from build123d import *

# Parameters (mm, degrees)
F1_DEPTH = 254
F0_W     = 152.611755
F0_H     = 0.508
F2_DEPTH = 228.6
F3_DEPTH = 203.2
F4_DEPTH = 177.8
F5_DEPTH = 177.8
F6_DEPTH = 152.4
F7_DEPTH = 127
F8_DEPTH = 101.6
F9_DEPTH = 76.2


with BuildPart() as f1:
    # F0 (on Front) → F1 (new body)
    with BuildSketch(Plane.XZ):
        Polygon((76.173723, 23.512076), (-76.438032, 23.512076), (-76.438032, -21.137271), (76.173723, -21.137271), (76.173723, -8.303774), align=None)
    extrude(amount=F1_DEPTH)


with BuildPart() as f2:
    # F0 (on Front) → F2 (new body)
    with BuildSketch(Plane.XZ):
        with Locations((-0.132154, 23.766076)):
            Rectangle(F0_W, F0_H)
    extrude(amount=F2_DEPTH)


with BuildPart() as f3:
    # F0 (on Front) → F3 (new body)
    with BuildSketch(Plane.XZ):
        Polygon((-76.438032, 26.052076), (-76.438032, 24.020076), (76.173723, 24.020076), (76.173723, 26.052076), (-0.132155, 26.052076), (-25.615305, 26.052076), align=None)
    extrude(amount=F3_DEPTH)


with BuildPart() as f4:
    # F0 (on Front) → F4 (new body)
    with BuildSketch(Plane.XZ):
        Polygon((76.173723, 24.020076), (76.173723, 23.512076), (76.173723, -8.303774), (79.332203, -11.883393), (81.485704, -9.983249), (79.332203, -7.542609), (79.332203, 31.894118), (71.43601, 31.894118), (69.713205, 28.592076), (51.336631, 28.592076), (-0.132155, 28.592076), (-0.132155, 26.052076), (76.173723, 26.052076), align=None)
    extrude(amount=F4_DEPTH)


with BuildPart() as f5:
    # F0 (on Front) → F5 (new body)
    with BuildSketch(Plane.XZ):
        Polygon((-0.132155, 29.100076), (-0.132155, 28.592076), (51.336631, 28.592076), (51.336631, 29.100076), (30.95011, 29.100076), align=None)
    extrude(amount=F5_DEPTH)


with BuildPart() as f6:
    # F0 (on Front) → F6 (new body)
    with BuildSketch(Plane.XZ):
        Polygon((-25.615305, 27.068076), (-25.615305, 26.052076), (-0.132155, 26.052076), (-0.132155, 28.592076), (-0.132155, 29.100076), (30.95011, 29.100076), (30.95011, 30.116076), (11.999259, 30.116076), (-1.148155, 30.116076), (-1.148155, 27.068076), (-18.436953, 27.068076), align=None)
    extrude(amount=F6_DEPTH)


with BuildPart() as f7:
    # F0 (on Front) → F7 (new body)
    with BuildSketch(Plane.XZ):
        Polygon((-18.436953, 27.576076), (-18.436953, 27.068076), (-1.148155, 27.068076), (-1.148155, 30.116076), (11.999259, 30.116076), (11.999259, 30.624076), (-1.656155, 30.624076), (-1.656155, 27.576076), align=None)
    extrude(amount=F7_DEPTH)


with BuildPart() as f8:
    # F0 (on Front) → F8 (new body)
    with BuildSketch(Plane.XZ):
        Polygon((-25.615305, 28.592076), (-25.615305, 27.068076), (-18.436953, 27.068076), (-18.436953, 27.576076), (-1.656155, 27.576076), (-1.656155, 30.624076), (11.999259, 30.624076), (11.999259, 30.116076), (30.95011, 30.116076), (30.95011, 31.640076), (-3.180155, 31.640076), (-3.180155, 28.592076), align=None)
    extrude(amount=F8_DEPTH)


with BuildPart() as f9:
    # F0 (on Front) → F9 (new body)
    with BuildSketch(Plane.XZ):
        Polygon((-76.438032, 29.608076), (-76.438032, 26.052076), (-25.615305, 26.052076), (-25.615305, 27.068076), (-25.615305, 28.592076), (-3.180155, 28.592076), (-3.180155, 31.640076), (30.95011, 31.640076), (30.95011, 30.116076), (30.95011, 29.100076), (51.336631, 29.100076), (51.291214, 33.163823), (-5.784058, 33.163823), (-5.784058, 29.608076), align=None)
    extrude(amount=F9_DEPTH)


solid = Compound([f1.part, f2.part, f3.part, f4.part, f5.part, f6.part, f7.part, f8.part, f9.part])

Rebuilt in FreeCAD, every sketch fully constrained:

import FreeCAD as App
import Part
import Sketcher
from FreeCAD import Vector
Q = App.Units.Quantity

doc = App.newDocument("Part")
body = doc.addObject("PartDesign::Body", "Body")

# Sketch on XZ plane
sketch1 = body.newObject("Sketcher::SketchObject", "Sketch")
sketch1.AttachmentSupport = (doc.getObject("XZ_Plane"), [""])
sketch1.MapMode = "FlatFace"
sketch1.addGeometry([
    Part.LineSegment(Vector(76, 24, 0), Vector(-76, 24, 0)),
    Part.LineSegment(Vector(-76, 24, 0), Vector(-76, -21, 0)),
    Part.LineSegment(Vector(-76, -21, 0), Vector(76, -21, 0)),
    Part.LineSegment(Vector(76, -21, 0), Vector(76, 24, 0)),
], False)
sketch1.addConstraint([
    Sketcher.Constraint("Coincident", 0, 2, 1, 1),
    Sketcher.Constraint("Coincident", 1, 2, 2, 1),
    Sketcher.Constraint("Coincident", 2, 2, 3, 1),
    Sketcher.Constraint("Coincident", 3, 2, 0, 1),
    Sketcher.Constraint("Horizontal", 0),
    Sketcher.Constraint("Vertical", 1),
    Sketcher.Constraint("Horizontal", 2),
    Sketcher.Constraint("Vertical", 3),
    Sketcher.Constraint("DistanceX", 0, 2, 0, 1, Q("152.611755 mm")),
    Sketcher.Constraint("DistanceY", 1, 2, 1, 1, Q("44.649347 mm")),
    Sketcher.Constraint("DistanceY", 1, 2, -1, 1, Q("21.137271 mm")),
    Sketcher.Constraint("DistanceX", 0, 2, -1, 1, Q("76.438032 mm")),
])
pad1 = body.newObject("PartDesign::Pad", "Pad")
pad1.Profile = sketch1
pad1.Length = Q("10 in")
body2 = doc.addObject("PartDesign::Body", "Body001")

# Sketch on XZ plane
sketch2 = body2.newObject("Sketcher::SketchObject", "Sketch001")
sketch2.AttachmentSupport = (doc.getObject("XZ_Plane001"), [""])
sketch2.MapMode = "FlatFace"
sketch2.addGeometry([
    Part.LineSegment(Vector(-76.4, 24, 0), Vector(-76.4, 23.5, 0)),
    Part.LineSegment(Vector(-76.4, 23.5, 0), Vector(76.2, 23.5, 0)),
    Part.LineSegment(Vector(76.2, 23.5, 0), Vector(76.2, 24, 0)),
    Part.LineSegment(Vector(76.2, 24, 0), Vector(-76.4, 24, 0)),
], False)
sketch2.addConstraint([
    Sketcher.Constraint("Coincident", 0, 2, 1, 1),
    Sketcher.Constraint("Coincident", 1, 2, 2, 1),
    Sketcher.Constraint("Coincident", 2, 2, 3, 1),
    Sketcher.Constraint("Coincident", 3, 2, 0, 1),
    Sketcher.Constraint("Vertical", 0),
    Sketcher.Constraint("Horizontal", 1),
    Sketcher.Constraint("Vertical", 2),
    Sketcher.Constraint("Horizontal", 3),
    Sketcher.Constraint("DistanceY", 0, 2, 0, 1, Q("0.02 in")),
    Sketcher.Constraint("DistanceX", 1, 1, 1, 2, Q("152.611755 mm")),
    Sketcher.Constraint("DistanceX", 0, 2, -1, 1, Q("76.438031 mm")),
    Sketcher.Constraint("DistanceY", -1, 1, 0, 2, Q("23.512076 mm")),
])
pad2 = body2.newObject("PartDesign::Pad", "Pad001")
pad2.Profile = sketch2
pad2.Length = Q("9 in")
body3 = doc.addObject("PartDesign::Body", "Body002")

# Sketch on XZ plane
sketch3 = body3.newObject("Sketcher::SketchObject", "Sketch002")
sketch3.AttachmentSupport = (doc.getObject("XZ_Plane002"), [""])
sketch3.MapMode = "FlatFace"
sketch3.addGeometry([
    Part.LineSegment(Vector(-76.4, 26.1, 0), Vector(-76.4, 24, 0)),
    Part.LineSegment(Vector(-76.4, 24, 0), Vector(76.2, 24, 0)),
    Part.LineSegment(Vector(76.2, 24, 0), Vector(76.2, 26.1, 0)),
    Part.LineSegment(Vector(76.2, 26.1, 0), Vector(-76.4, 26.1, 0)),
], False)
sketch3.addConstraint([
    Sketcher.Constraint("Coincident", 0, 2, 1, 1),
    Sketcher.Constraint("Coincident", 1, 2, 2, 1),
    Sketcher.Constraint("Coincident", 2, 2, 3, 1),
    Sketcher.Constraint("Coincident", 3, 2, 0, 1),
    Sketcher.Constraint("Vertical", 0),
    Sketcher.Constraint("Horizontal", 1),
    Sketcher.Constraint("Vertical", 2),
    Sketcher.Constraint("Horizontal", 3),
    Sketcher.Constraint("DistanceY", 0, 2, 0, 1, Q("0.08 in")),
    Sketcher.Constraint("DistanceX", 1, 1, 1, 2, Q("152.611755 mm")),
    Sketcher.Constraint("DistanceX", 0, 2, -1, 1, Q("76.438032 mm")),
    Sketcher.Constraint("DistanceY", -1, 1, 0, 2, Q("24.020076 mm")),
])
pad3 = body3.newObject("PartDesign::Pad", "Pad002")
pad3.Profile = sketch3
pad3.Length = Q("8 in")
body4 = doc.addObject("PartDesign::Body", "Body003")

# Sketch on XZ plane
sketch4 = body4.newObject("Sketcher::SketchObject", "Sketch003")
sketch4.AttachmentSupport = (doc.getObject("XZ_Plane003"), [""])
sketch4.MapMode = "FlatFace"
sketch4.addGeometry([
    Part.LineSegment(Vector(76.2, -8.3, 0), Vector(79.3, -11.9, 0)),  # 0
    Part.LineSegment(Vector(79.3, -11.9, 0), Vector(81.5, -10, 0)),  # 1
    Part.LineSegment(Vector(81.5, -10, 0), Vector(79.3, -7.5, 0)),  # 2
    Part.LineSegment(Vector(79.3, -7.5, 0), Vector(79.3, 31.9, 0)),  # 3
    Part.LineSegment(Vector(79.3, 31.9, 0), Vector(71.4, 31.9, 0)),  # 4
    Part.LineSegment(Vector(71.4, 31.9, 0), Vector(69.7, 28.6, 0)),  # 5
    Part.LineSegment(Vector(69.7, 28.6, 0), Vector(-0.1, 28.6, 0)),  # 6
    Part.LineSegment(Vector(-0.1, 28.6, 0), Vector(-0.1, 26.1, 0)),  # 7
    Part.LineSegment(Vector(-0.1, 26.1, 0), Vector(76.2, 26.1, 0)),  # 8
    Part.LineSegment(Vector(76.2, 26.1, 0), Vector(76.2, -8.3, 0)),  # 9
], False)
sketch4.addConstraint([
    Sketcher.Constraint("Coincident", 0, 2, 1, 1),
    Sketcher.Constraint("Coincident", 1, 2, 2, 1),
    Sketcher.Constraint("Coincident", 2, 2, 3, 1),
    Sketcher.Constraint("Coincident", 3, 2, 4, 1),
    Sketcher.Constraint("Coincident", 4, 2, 5, 1),
    Sketcher.Constraint("Coincident", 5, 2, 6, 1),
    Sketcher.Constraint("Coincident", 6, 2, 7, 1),
    Sketcher.Constraint("Coincident", 7, 2, 8, 1),
    Sketcher.Constraint("Coincident", 8, 2, 9, 1),
    Sketcher.Constraint("Coincident", 9, 2, 0, 1),
    Sketcher.Constraint("Vertical", 3),
    Sketcher.Constraint("Horizontal", 4),
    Sketcher.Constraint("Horizontal", 6),
    Sketcher.Constraint("Vertical", 7),
    Sketcher.Constraint("Horizontal", 8),
    Sketcher.Constraint("Vertical", 9),
    Sketcher.Constraint("Perpendicular", 0, 1),
    Sketcher.Constraint("Perpendicular", 1, 2),
    Sketcher.Constraint("Vertical", 0, 2, 2, 2),
    Sketcher.Constraint("DistanceY", 7, 2, 7, 1, Q("0.1 in")),
    Sketcher.Constraint("DistanceX", 6, 2, 6, 1, Q("69.84536 mm")),
    Sketcher.Constraint("DistanceY", 9, 2, 9, 1, Q("34.35585 mm")),
    Sketcher.Constraint("DistanceX", 0, 2, 1, 2, Q("2.153501 mm")),
    Sketcher.Constraint("DistanceX", 5, 2, 3, 2, Q("9.618998 mm")),
    Sketcher.Constraint("Distance", 5, Q("3.724451 mm")),
    Sketcher.Constraint("DistanceX", 4, 2, 4, 1, Q("7.896193 mm")),
    Sketcher.Constraint("DistanceX", 8, 1, 8, 2, Q("76.305878 mm")),
    Sketcher.Constraint("DistanceY", 3, 1, 3, 2, Q("39.436727 mm")),
    Sketcher.Constraint("DistanceY", 1, 2, -1, 1, Q("9.983249 mm")),
    Sketcher.Constraint("DistanceX", -1, 1, 4, 2, Q("71.43601 mm")),
])
pad4 = body4.newObject("PartDesign::Pad", "Pad003")
pad4.Profile = sketch4
pad4.Length = Q("7 in")
body5 = doc.addObject("PartDesign::Body", "Body004")

# Sketch on XZ plane
sketch5 = body5.newObject("Sketcher::SketchObject", "Sketch004")
sketch5.AttachmentSupport = (doc.getObject("XZ_Plane004"), [""])
sketch5.MapMode = "FlatFace"
sketch5.addGeometry([
    Part.LineSegment(Vector(-0.1, 29.1, 0), Vector(-0.1, 28.6, 0)),
    Part.LineSegment(Vector(-0.1, 28.6, 0), Vector(51.3, 28.6, 0)),
    Part.LineSegment(Vector(51.3, 28.6, 0), Vector(51.3, 29.1, 0)),
    Part.LineSegment(Vector(51.3, 29.1, 0), Vector(-0.1, 29.1, 0)),
], False)
sketch5.addConstraint([
    Sketcher.Constraint("Coincident", 0, 2, 1, 1),
    Sketcher.Constraint("Coincident", 1, 2, 2, 1),
    Sketcher.Constraint("Coincident", 2, 2, 3, 1),
    Sketcher.Constraint("Coincident", 3, 2, 0, 1),
    Sketcher.Constraint("Vertical", 0),
    Sketcher.Constraint("Horizontal", 1),
    Sketcher.Constraint("Vertical", 2),
    Sketcher.Constraint("Horizontal", 3),
    Sketcher.Constraint("DistanceY", 0, 2, 0, 1, Q("0.02 in")),
    Sketcher.Constraint("DistanceX", 1, 1, 1, 2, Q("51.468786 mm")),
    Sketcher.Constraint("DistanceX", -1, 1, 1, 2, Q("51.336631 mm")),
    Sketcher.Constraint("DistanceY", -1, 1, 0, 2, Q("28.592076 mm")),
])
pad5 = body5.newObject("PartDesign::Pad", "Pad004")
pad5.Profile = sketch5
pad5.Length = Q("7 in")
body6 = doc.addObject("PartDesign::Body", "Body005")

# Sketch on XZ plane
sketch6 = body6.newObject("Sketcher::SketchObject", "Sketch005")
sketch6.AttachmentSupport = (doc.getObject("XZ_Plane005"), [""])
sketch6.MapMode = "FlatFace"
sketch6.addGeometry([
    Part.LineSegment(Vector(-25.6, 27.1, 0), Vector(-25.6, 26.1, 0)),  # 0
    Part.LineSegment(Vector(-25.6, 26.1, 0), Vector(-0.1, 26.1, 0)),  # 1
    Part.LineSegment(Vector(-0.1, 26.1, 0), Vector(-0.1, 29.1, 0)),  # 2
    Part.LineSegment(Vector(-0.1, 29.1, 0), Vector(31, 29.1, 0)),  # 3
    Part.LineSegment(Vector(31, 29.1, 0), Vector(31, 30.1, 0)),  # 4
    Part.LineSegment(Vector(31, 30.1, 0), Vector(-1.1, 30.1, 0)),  # 5
    Part.LineSegment(Vector(-1.1, 30.1, 0), Vector(-1.1, 27.1, 0)),  # 6
    Part.LineSegment(Vector(-1.1, 27.1, 0), Vector(-25.6, 27.1, 0)),  # 7
], False)
sketch6.addConstraint([
    Sketcher.Constraint("Coincident", 0, 2, 1, 1),
    Sketcher.Constraint("Coincident", 1, 2, 2, 1),
    Sketcher.Constraint("Coincident", 2, 2, 3, 1),
    Sketcher.Constraint("Coincident", 3, 2, 4, 1),
    Sketcher.Constraint("Coincident", 4, 2, 5, 1),
    Sketcher.Constraint("Coincident", 5, 2, 6, 1),
    Sketcher.Constraint("Coincident", 6, 2, 7, 1),
    Sketcher.Constraint("Coincident", 7, 2, 0, 1),
    Sketcher.Constraint("Vertical", 0),
    Sketcher.Constraint("Horizontal", 1),
    Sketcher.Constraint("Vertical", 2),
    Sketcher.Constraint("Horizontal", 3),
    Sketcher.Constraint("Vertical", 4),
    Sketcher.Constraint("Horizontal", 5),
    Sketcher.Constraint("Vertical", 6),
    Sketcher.Constraint("Horizontal", 7),
    Sketcher.Constraint("Equal", 0, 4),
    Sketcher.Constraint("DistanceY", 0, 2, 0, 1, Q("0.04 in")),
    Sketcher.Constraint("DistanceY", 2, 1, 2, 2, Q("0.12 in")),
    Sketcher.Constraint("DistanceX", 5, 2, 2, 2, Q("0.04 in")),
    Sketcher.Constraint("DistanceX", 1, 1, 1, 2, Q("25.48315 mm")),
    Sketcher.Constraint("DistanceX", 3, 1, 3, 2, Q("31.082265 mm")),
    Sketcher.Constraint("DistanceX", -1, 1, 3, 2, Q("30.95011 mm")),
    Sketcher.Constraint("DistanceY", -1, 1, 0, 2, Q("26.052076 mm")),
])
pad6 = body6.newObject("PartDesign::Pad", "Pad005")
pad6.Profile = sketch6
pad6.Length = Q("6 in")
body7 = doc.addObject("PartDesign::Body", "Body006")

# Sketch on XZ plane
sketch7 = body7.newObject("Sketcher::SketchObject", "Sketch006")
sketch7.AttachmentSupport = (doc.getObject("XZ_Plane006"), [""])
sketch7.MapMode = "FlatFace"
sketch7.addGeometry([
    Part.LineSegment(Vector(-18.4, 27.6, 0), Vector(-18.4, 27.1, 0)),  # 0
    Part.LineSegment(Vector(-18.4, 27.1, 0), Vector(-1.1, 27.1, 0)),  # 1
    Part.LineSegment(Vector(-1.1, 27.1, 0), Vector(-1.1, 30.1, 0)),  # 2
    Part.LineSegment(Vector(-1.1, 30.1, 0), Vector(12, 30.1, 0)),  # 3
    Part.LineSegment(Vector(12, 30.1, 0), Vector(12, 30.6, 0)),  # 4
    Part.LineSegment(Vector(12, 30.6, 0), Vector(-1.7, 30.6, 0)),  # 5
    Part.LineSegment(Vector(-1.7, 30.6, 0), Vector(-1.7, 27.6, 0)),  # 6
    Part.LineSegment(Vector(-1.7, 27.6, 0), Vector(-18.4, 27.6, 0)),  # 7
], False)
sketch7.addConstraint([
    Sketcher.Constraint("Coincident", 0, 2, 1, 1),
    Sketcher.Constraint("Coincident", 1, 2, 2, 1),
    Sketcher.Constraint("Coincident", 2, 2, 3, 1),
    Sketcher.Constraint("Coincident", 3, 2, 4, 1),
    Sketcher.Constraint("Coincident", 4, 2, 5, 1),
    Sketcher.Constraint("Coincident", 5, 2, 6, 1),
    Sketcher.Constraint("Coincident", 6, 2, 7, 1),
    Sketcher.Constraint("Coincident", 7, 2, 0, 1),
    Sketcher.Constraint("Vertical", 0),
    Sketcher.Constraint("Horizontal", 1),
    Sketcher.Constraint("Vertical", 2),
    Sketcher.Constraint("Horizontal", 3),
    Sketcher.Constraint("Vertical", 4),
    Sketcher.Constraint("Horizontal", 5),
    Sketcher.Constraint("Vertical", 6),
    Sketcher.Constraint("Horizontal", 7),
    Sketcher.Constraint("Equal", 0, 4),
    Sketcher.Constraint("DistanceY", 0, 2, 0, 1, Q("0.02 in")),
    Sketcher.Constraint("DistanceY", 2, 1, 2, 2, Q("0.12 in")),
    Sketcher.Constraint("DistanceX", 5, 2, 2, 2, Q("0.02 in")),
    Sketcher.Constraint("DistanceX", 1, 1, 1, 2, Q("17.288798 mm")),
    Sketcher.Constraint("DistanceX", 3, 1, 3, 2, Q("13.147414 mm")),
    Sketcher.Constraint("DistanceX", -1, 1, 3, 2, Q("11.999259 mm")),
    Sketcher.Constraint("DistanceY", -1, 1, 0, 2, Q("27.068076 mm")),
])
pad7 = body7.newObject("PartDesign::Pad", "Pad006")
pad7.Profile = sketch7
pad7.Length = Q("5 in")
body8 = doc.addObject("PartDesign::Body", "Body007")

# Sketch on XZ plane
sketch8 = body8.newObject("Sketcher::SketchObject", "Sketch007")
sketch8.AttachmentSupport = (doc.getObject("XZ_Plane007"), [""])
sketch8.MapMode = "FlatFace"
sketch8.addGeometry([
    Part.LineSegment(Vector(-25.6, 28.6, 0), Vector(-25.6, 27.1, 0)),  # 0
    Part.LineSegment(Vector(-25.6, 27.1, 0), Vector(-18.4, 27.1, 0)),  # 1
    Part.LineSegment(Vector(-18.4, 27.1, 0), Vector(-18.4, 27.6, 0)),  # 2
    Part.LineSegment(Vector(-18.4, 27.6, 0), Vector(-1.7, 27.6, 0)),  # 3
    Part.LineSegment(Vector(-1.7, 27.6, 0), Vector(-1.7, 30.6, 0)),  # 4
    Part.LineSegment(Vector(-1.7, 30.6, 0), Vector(12, 30.6, 0)),  # 5
    Part.LineSegment(Vector(12, 30.6, 0), Vector(12, 30.1, 0)),  # 6
    Part.LineSegment(Vector(12, 30.1, 0), Vector(31, 30.1, 0)),  # 7
    Part.LineSegment(Vector(31, 30.1, 0), Vector(31, 31.6, 0)),  # 8
    Part.LineSegment(Vector(31, 31.6, 0), Vector(-3.2, 31.6, 0)),  # 9
    Part.LineSegment(Vector(-3.2, 31.6, 0), Vector(-3.2, 28.6, 0)),  # 10
    Part.LineSegment(Vector(-3.2, 28.6, 0), Vector(-25.6, 28.6, 0)),  # 11
], False)
sketch8.addConstraint([
    Sketcher.Constraint("Coincident", 0, 2, 1, 1),
    Sketcher.Constraint("Coincident", 1, 2, 2, 1),
    Sketcher.Constraint("Coincident", 2, 2, 3, 1),
    Sketcher.Constraint("Coincident", 3, 2, 4, 1),
    Sketcher.Constraint("Coincident", 4, 2, 5, 1),
    Sketcher.Constraint("Coincident", 5, 2, 6, 1),
    Sketcher.Constraint("Coincident", 6, 2, 7, 1),
    Sketcher.Constraint("Coincident", 7, 2, 8, 1),
    Sketcher.Constraint("Coincident", 8, 2, 9, 1),
    Sketcher.Constraint("Coincident", 9, 2, 10, 1),
    Sketcher.Constraint("Coincident", 10, 2, 11, 1),
    Sketcher.Constraint("Coincident", 11, 2, 0, 1),
    Sketcher.Constraint("Vertical", 0),
    Sketcher.Constraint("Horizontal", 1),
    Sketcher.Constraint("Vertical", 2),
    Sketcher.Constraint("Horizontal", 3),
    Sketcher.Constraint("Vertical", 4),
    Sketcher.Constraint("Horizontal", 5),
    Sketcher.Constraint("Vertical", 6),
    Sketcher.Constraint("Horizontal", 7),
    Sketcher.Constraint("Vertical", 8),
    Sketcher.Constraint("Horizontal", 9),
    Sketcher.Constraint("Vertical", 10),
    Sketcher.Constraint("Horizontal", 11),
    Sketcher.Constraint("Equal", 2, 6),
    Sketcher.Constraint("Equal", 0, 8),
    Sketcher.Constraint("DistanceY", 0, 2, 0, 1, Q("0.06 in")),
    Sketcher.Constraint("DistanceY", 2, 1, 2, 2, Q("0.02 in")),
    Sketcher.Constraint("DistanceY", 4, 1, 4, 2, Q("0.12 in")),
    Sketcher.Constraint("DistanceX", 9, 2, 4, 2, Q("0.06 in")),
    Sketcher.Constraint("DistanceX", 7, 1, 7, 2, Q("18.950851 mm")),
    Sketcher.Constraint("DistanceX", 11, 2, 11, 1, Q("22.43515 mm")),
    Sketcher.Constraint("DistanceX", 1, 1, 1, 2, Q("7.178352 mm")),
    Sketcher.Constraint("DistanceX", 5, 1, 5, 2, Q("13.655414 mm")),
    Sketcher.Constraint("DistanceX", -1, 1, 5, 2, Q("11.999259 mm")),
    Sketcher.Constraint("DistanceY", -1, 1, 0, 2, Q("27.068076 mm")),
])
pad8 = body8.newObject("PartDesign::Pad", "Pad007")
pad8.Profile = sketch8
pad8.Length = Q("4 in")
body9 = doc.addObject("PartDesign::Body", "Body008")

# Sketch on XZ plane
sketch9 = body9.newObject("Sketcher::SketchObject", "Sketch008")
sketch9.AttachmentSupport = (doc.getObject("XZ_Plane008"), [""])
sketch9.MapMode = "FlatFace"
sketch9.addGeometry([
    Part.LineSegment(Vector(-76.4, 29.6, 0), Vector(-76.4, 26.1, 0)),  # 0
    Part.LineSegment(Vector(-76.4, 26.1, 0), Vector(-25.6, 26.1, 0)),  # 1
    Part.LineSegment(Vector(-25.6, 26.1, 0), Vector(-25.6, 28.6, 0)),  # 2
    Part.LineSegment(Vector(-25.6, 28.6, 0), Vector(-3.2, 28.6, 0)),  # 3
    Part.LineSegment(Vector(-3.2, 28.6, 0), Vector(-3.2, 31.6, 0)),  # 4
    Part.LineSegment(Vector(-3.2, 31.6, 0), Vector(31, 31.6, 0)),  # 5
    Part.LineSegment(Vector(31, 31.6, 0), Vector(31, 29.1, 0)),  # 6
    Part.LineSegment(Vector(31, 29.1, 0), Vector(51.3, 29.1, 0)),  # 7
    Part.LineSegment(Vector(51.3, 29.1, 0), Vector(51.3, 33.2, 0)),  # 8
    Part.LineSegment(Vector(51.3, 33.2, 0), Vector(-5.8, 33.2, 0)),  # 9
    Part.LineSegment(Vector(-5.8, 33.2, 0), Vector(-5.8, 29.6, 0)),  # 10
    Part.LineSegment(Vector(-5.8, 29.6, 0), Vector(-76.4, 29.6, 0)),  # 11
], False)
sketch9.addConstraint([
    Sketcher.Constraint("Coincident", 0, 2, 1, 1),
    Sketcher.Constraint("Coincident", 1, 2, 2, 1),
    Sketcher.Constraint("Coincident", 2, 2, 3, 1),
    Sketcher.Constraint("Coincident", 3, 2, 4, 1),
    Sketcher.Constraint("Coincident", 4, 2, 5, 1),
    Sketcher.Constraint("Coincident", 5, 2, 6, 1),
    Sketcher.Constraint("Coincident", 6, 2, 7, 1),
    Sketcher.Constraint("Coincident", 7, 2, 8, 1),
    Sketcher.Constraint("Coincident", 8, 2, 9, 1),
    Sketcher.Constraint("Coincident", 9, 2, 10, 1),
    Sketcher.Constraint("Coincident", 10, 2, 11, 1),
    Sketcher.Constraint("Coincident", 11, 2, 0, 1),
    Sketcher.Constraint("Vertical", 0),
    Sketcher.Constraint("Horizontal", 1),
    Sketcher.Constraint("Vertical", 2),
    Sketcher.Constraint("Horizontal", 3),
    Sketcher.Constraint("Vertical", 4),
    Sketcher.Constraint("Horizontal", 5),
    Sketcher.Constraint("Vertical", 6),
    Sketcher.Constraint("Horizontal", 7),
    Sketcher.Constraint("Horizontal", 9),
    Sketcher.Constraint("Vertical", 10),
    Sketcher.Constraint("Horizontal", 11),
    Sketcher.Constraint("Equal", 2, 6),
    Sketcher.Constraint("DistanceY", 2, 1, 2, 2, Q("0.1 in")),
    Sketcher.Constraint("DistanceY", 0, 2, 0, 1, Q("0.14 in")),
    Sketcher.Constraint("DistanceY", 4, 1, 4, 2, Q("0.12 in")),
    Sketcher.Constraint("Distance", 8, Q("0.16 in")),
    Sketcher.Constraint("DistanceX", 3, 1, 3, 2, Q("22.43515 mm")),
    Sketcher.Constraint("DistanceX", 7, 1, 7, 2, Q("20.386521 mm")),
    Sketcher.Constraint("DistanceX", 9, 2, 9, 1, Q("57.075272 mm")),
    Sketcher.Constraint("DistanceX", 1, 1, 1, 2, Q("50.822727 mm")),
    Sketcher.Constraint("DistanceX", 5, 1, 5, 2, Q("34.130265 mm")),
    Sketcher.Constraint("DistanceX", 11, 2, 11, 1, Q("70.653974 mm")),
    Sketcher.Constraint("DistanceX", -1, 1, 5, 2, Q("30.95011 mm")),
    Sketcher.Constraint("DistanceY", -1, 1, 0, 2, Q("26.052076 mm")),
])
pad9 = body9.newObject("PartDesign::Pad", "Pad008")
pad9.Profile = sketch9
pad9.Length = Q("3 in")

doc.recompute()
